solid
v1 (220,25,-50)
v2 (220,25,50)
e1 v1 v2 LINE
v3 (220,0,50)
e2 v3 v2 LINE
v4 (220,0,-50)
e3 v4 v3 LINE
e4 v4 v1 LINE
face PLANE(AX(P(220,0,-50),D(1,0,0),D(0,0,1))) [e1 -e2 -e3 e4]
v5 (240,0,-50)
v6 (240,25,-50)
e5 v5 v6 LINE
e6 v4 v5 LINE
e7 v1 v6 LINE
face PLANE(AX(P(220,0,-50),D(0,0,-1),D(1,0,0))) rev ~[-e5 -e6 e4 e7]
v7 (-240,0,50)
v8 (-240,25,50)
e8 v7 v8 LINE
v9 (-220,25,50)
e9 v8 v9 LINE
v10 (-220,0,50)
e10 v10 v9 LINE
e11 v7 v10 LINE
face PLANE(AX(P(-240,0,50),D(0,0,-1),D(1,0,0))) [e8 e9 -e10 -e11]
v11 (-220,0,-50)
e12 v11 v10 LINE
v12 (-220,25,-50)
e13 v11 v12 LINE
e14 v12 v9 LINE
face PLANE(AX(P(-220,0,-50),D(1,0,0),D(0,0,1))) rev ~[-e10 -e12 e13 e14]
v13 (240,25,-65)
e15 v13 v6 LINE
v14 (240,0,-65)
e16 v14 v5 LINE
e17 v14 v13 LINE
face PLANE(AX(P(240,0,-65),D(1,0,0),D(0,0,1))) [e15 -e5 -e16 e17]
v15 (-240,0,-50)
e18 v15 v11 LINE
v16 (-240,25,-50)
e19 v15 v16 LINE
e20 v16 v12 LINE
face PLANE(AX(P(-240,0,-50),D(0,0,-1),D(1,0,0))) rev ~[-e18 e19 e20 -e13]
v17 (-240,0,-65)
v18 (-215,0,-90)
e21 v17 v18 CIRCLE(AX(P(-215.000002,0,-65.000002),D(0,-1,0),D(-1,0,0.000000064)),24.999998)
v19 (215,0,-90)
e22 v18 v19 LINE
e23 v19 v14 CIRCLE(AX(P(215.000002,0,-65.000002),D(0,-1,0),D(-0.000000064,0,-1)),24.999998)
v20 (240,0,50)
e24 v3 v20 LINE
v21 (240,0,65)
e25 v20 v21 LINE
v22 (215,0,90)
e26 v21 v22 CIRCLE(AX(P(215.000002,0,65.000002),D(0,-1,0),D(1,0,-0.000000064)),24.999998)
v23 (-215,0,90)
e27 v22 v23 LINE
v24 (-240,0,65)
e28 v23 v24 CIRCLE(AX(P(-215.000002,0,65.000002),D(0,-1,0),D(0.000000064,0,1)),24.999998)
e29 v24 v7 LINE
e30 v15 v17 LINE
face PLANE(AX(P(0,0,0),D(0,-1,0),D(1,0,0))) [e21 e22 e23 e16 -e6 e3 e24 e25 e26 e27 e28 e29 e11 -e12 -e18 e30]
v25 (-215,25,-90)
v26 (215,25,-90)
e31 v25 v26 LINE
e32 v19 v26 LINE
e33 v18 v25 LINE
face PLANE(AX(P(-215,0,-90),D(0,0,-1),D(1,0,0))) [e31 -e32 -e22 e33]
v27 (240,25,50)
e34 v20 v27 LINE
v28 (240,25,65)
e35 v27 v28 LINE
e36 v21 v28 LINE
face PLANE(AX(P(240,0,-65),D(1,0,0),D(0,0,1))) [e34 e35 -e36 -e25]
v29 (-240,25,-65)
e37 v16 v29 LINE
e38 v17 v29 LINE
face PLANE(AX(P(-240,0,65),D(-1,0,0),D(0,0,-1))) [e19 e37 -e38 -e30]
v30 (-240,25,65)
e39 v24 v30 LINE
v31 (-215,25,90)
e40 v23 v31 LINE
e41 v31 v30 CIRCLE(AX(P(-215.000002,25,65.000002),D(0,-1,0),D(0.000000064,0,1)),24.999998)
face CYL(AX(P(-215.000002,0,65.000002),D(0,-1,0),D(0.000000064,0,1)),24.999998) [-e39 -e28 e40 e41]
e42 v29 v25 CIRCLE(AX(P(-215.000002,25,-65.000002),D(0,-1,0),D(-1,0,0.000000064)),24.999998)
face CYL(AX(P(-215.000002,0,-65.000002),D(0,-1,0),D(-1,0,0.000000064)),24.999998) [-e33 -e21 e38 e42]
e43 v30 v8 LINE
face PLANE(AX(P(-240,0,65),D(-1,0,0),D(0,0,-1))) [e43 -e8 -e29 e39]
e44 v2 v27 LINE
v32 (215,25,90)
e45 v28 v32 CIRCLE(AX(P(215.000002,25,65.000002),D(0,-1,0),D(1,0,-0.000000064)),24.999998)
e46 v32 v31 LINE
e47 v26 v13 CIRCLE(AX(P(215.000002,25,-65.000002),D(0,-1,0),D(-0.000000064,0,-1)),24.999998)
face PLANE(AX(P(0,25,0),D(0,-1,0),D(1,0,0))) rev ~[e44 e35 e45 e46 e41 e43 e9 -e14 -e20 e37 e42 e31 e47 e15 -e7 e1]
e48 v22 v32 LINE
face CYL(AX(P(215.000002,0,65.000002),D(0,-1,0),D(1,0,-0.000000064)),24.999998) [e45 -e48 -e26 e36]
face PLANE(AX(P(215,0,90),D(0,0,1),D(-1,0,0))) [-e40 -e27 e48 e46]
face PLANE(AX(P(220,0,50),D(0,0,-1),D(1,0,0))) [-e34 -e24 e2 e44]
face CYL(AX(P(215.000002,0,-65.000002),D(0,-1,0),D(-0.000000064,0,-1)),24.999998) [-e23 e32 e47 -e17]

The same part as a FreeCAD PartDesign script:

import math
import FreeCAD as App
import Part
import Sketcher

V = App.Vector


def add_polygon(sketch, points):
    """Adds a closed chain of lines whose ends are joined by coincident constraints."""
    first, n = sketch.GeometryCount, len(points)
    for a, b in zip(points, points[1:] + points[:1]):
        sketch.addGeometry(Part.LineSegment(App.Vector(*a, 0), App.Vector(*b, 0)), False)
    for i in range(n):
        sketch.addConstraint(Sketcher.Constraint("Coincident", first + i, 2, first + (i + 1) % n, 1))

doc = App.newDocument("Part")
body = doc.addObject("PartDesign::Body", "Body")

sketch1 = body.newObject("Sketcher::SketchObject", "Sketch")
sketch1.AttachmentSupport = (doc.getObject("XZ_Plane"), [""])
sketch1.MapMode = "FlatFace"
sketch1.addGeometry(Part.LineSegment(V(215, 90, 0), V(-215, 90, 0)), False)
sketch1.addGeometry(Part.ArcOfCircle(Part.Circle(V(-215, 65, 0), V(0, 0, 1), 25), math.radians(90), math.radians(180)), False)
sketch1.addGeometry(Part.LineSegment(V(-240, 65, 0), V(-240, -65, 0)), False)
sketch1.addGeometry(Part.ArcOfCircle(Part.Circle(V(-215, -65, 0), V(0, 0, 1), 25), math.radians(180), math.radians(270)), False)
sketch1.addGeometry(Part.LineSegment(V(-215, -90, 0), V(215, -90, 0)), False)
sketch1.addGeometry(Part.ArcOfCircle(Part.Circle(V(215, -65, 0), V(0, 0, 1), 25), math.radians(-90), math.radians(0)), False)
sketch1.addGeometry(Part.LineSegment(V(240, -65, 0), V(240, 65, 0)), False)
sketch1.addGeometry(Part.ArcOfCircle(Part.Circle(V(215, 65, 0), V(0, 0, 1), 25), math.radians(0), math.radians(90)), False)
sketch1.addConstraint(Sketcher.Constraint("Tangent", 0, 2, 1, 1))
sketch1.addConstraint(Sketcher.Constraint("Tangent", 1, 2, 2, 1))
sketch1.addConstraint(Sketcher.Constraint("Tangent", 2, 2, 3, 1))
sketch1.addConstraint(Sketcher.Constraint("Tangent", 3, 2, 4, 1))
sketch1.addConstraint(Sketcher.Constraint("Tangent", 4, 2, 5, 1))
sketch1.addConstraint(Sketcher.Constraint("Tangent", 5, 2, 6, 1))
sketch1.addConstraint(Sketcher.Constraint("Tangent", 6, 2, 7, 1))
sketch1.addConstraint(Sketcher.Constraint("Tangent", 7, 2, 0, 1))
sketch1.addConstraint(Sketcher.Constraint("Horizontal", 0))
sketch1.addConstraint(Sketcher.Constraint("Vertical", 2))
sketch1.addConstraint(Sketcher.Constraint("Horizontal", 4))
sketch1.addConstraint(Sketcher.Constraint("Vertical", 6))
sketch1.addConstraint(Sketcher.Constraint("Equal", 1, 3))
sketch1.addConstraint(Sketcher.Constraint("Equal", 3, 5))
sketch1.addConstraint(Sketcher.Constraint("Equal", 5, 7))
sketch1.addConstraint(Sketcher.Constraint("Symmetric", 1, 3, 5, 3, -1, 1))
sketch1.addConstraint(Sketcher.Constraint("Radius", 1, 24.999998))
sketch1.addConstraint(Sketcher.Constraint("DistanceX", 0, 2, 0, 1, 430.0))
sketch1.addConstraint(Sketcher.Constraint("DistanceY", 2, 2, 2, 1, 130.0))
pad1 = body.newObject("PartDesign::Pad", "Pad")
pad1.Profile = sketch1
pad1.Length = 25
pad1.Reversed = True

sketch2 = body.newObject("Sketcher::SketchObject", "Sketch001")
sketch2.AttachmentSupport = (doc.getObject("XZ_Plane"), [""])
sketch2.MapMode = "FlatFace"
add_polygon(sketch2, [(-240, 50), (-240, -50), (-220, -50), (-220, 50)])
add_polygon(sketch2, [(220, 50), (220, -50), (240, -50), (240, 50)])
sketch2.addConstraint(Sketcher.Constraint("Vertical", 0))
sketch2.addConstraint(Sketcher.Constraint("Horizontal", 1))
sketch2.addConstraint(Sketcher.Constraint("Vertical", 2))
sketch2.addConstraint(Sketcher.Constraint("Horizontal", 3))
sketch2.addConstraint(Sketcher.Constraint("Vertical", 4))
sketch2.addConstraint(Sketcher.Constraint("Horizontal", 5))
sketch2.addConstraint(Sketcher.Constraint("Vertical", 6))
sketch2.addConstraint(Sketcher.Constraint("Horizontal", 7))
sketch2.addConstraint(Sketcher.Constraint("Symmetric", 2, 2, 4, 2, -1, 1))
sketch2.addConstraint(Sketcher.Constraint("Symmetric", 0, 2, 6, 2, -1, 1))
sketch2.addConstraint(Sketcher.Constraint("Horizontal", 1, 2, 4, 2))
sketch2.addConstraint(Sketcher.Constraint("DistanceX", 1, 1, 1, 2, 20.0))
sketch2.addConstraint(Sketcher.Constraint("DistanceY", 0, 2, 0, 1, 100.0))
sketch2.addConstraint(Sketcher.Constraint("DistanceX", 0, 2, -1, 1, 240.0))
pocket1 = body.newObject("PartDesign::Pocket", "Pocket")
pocket1.Profile = sketch2
pocket1.Type = "ThroughAll"

doc.recompute()
